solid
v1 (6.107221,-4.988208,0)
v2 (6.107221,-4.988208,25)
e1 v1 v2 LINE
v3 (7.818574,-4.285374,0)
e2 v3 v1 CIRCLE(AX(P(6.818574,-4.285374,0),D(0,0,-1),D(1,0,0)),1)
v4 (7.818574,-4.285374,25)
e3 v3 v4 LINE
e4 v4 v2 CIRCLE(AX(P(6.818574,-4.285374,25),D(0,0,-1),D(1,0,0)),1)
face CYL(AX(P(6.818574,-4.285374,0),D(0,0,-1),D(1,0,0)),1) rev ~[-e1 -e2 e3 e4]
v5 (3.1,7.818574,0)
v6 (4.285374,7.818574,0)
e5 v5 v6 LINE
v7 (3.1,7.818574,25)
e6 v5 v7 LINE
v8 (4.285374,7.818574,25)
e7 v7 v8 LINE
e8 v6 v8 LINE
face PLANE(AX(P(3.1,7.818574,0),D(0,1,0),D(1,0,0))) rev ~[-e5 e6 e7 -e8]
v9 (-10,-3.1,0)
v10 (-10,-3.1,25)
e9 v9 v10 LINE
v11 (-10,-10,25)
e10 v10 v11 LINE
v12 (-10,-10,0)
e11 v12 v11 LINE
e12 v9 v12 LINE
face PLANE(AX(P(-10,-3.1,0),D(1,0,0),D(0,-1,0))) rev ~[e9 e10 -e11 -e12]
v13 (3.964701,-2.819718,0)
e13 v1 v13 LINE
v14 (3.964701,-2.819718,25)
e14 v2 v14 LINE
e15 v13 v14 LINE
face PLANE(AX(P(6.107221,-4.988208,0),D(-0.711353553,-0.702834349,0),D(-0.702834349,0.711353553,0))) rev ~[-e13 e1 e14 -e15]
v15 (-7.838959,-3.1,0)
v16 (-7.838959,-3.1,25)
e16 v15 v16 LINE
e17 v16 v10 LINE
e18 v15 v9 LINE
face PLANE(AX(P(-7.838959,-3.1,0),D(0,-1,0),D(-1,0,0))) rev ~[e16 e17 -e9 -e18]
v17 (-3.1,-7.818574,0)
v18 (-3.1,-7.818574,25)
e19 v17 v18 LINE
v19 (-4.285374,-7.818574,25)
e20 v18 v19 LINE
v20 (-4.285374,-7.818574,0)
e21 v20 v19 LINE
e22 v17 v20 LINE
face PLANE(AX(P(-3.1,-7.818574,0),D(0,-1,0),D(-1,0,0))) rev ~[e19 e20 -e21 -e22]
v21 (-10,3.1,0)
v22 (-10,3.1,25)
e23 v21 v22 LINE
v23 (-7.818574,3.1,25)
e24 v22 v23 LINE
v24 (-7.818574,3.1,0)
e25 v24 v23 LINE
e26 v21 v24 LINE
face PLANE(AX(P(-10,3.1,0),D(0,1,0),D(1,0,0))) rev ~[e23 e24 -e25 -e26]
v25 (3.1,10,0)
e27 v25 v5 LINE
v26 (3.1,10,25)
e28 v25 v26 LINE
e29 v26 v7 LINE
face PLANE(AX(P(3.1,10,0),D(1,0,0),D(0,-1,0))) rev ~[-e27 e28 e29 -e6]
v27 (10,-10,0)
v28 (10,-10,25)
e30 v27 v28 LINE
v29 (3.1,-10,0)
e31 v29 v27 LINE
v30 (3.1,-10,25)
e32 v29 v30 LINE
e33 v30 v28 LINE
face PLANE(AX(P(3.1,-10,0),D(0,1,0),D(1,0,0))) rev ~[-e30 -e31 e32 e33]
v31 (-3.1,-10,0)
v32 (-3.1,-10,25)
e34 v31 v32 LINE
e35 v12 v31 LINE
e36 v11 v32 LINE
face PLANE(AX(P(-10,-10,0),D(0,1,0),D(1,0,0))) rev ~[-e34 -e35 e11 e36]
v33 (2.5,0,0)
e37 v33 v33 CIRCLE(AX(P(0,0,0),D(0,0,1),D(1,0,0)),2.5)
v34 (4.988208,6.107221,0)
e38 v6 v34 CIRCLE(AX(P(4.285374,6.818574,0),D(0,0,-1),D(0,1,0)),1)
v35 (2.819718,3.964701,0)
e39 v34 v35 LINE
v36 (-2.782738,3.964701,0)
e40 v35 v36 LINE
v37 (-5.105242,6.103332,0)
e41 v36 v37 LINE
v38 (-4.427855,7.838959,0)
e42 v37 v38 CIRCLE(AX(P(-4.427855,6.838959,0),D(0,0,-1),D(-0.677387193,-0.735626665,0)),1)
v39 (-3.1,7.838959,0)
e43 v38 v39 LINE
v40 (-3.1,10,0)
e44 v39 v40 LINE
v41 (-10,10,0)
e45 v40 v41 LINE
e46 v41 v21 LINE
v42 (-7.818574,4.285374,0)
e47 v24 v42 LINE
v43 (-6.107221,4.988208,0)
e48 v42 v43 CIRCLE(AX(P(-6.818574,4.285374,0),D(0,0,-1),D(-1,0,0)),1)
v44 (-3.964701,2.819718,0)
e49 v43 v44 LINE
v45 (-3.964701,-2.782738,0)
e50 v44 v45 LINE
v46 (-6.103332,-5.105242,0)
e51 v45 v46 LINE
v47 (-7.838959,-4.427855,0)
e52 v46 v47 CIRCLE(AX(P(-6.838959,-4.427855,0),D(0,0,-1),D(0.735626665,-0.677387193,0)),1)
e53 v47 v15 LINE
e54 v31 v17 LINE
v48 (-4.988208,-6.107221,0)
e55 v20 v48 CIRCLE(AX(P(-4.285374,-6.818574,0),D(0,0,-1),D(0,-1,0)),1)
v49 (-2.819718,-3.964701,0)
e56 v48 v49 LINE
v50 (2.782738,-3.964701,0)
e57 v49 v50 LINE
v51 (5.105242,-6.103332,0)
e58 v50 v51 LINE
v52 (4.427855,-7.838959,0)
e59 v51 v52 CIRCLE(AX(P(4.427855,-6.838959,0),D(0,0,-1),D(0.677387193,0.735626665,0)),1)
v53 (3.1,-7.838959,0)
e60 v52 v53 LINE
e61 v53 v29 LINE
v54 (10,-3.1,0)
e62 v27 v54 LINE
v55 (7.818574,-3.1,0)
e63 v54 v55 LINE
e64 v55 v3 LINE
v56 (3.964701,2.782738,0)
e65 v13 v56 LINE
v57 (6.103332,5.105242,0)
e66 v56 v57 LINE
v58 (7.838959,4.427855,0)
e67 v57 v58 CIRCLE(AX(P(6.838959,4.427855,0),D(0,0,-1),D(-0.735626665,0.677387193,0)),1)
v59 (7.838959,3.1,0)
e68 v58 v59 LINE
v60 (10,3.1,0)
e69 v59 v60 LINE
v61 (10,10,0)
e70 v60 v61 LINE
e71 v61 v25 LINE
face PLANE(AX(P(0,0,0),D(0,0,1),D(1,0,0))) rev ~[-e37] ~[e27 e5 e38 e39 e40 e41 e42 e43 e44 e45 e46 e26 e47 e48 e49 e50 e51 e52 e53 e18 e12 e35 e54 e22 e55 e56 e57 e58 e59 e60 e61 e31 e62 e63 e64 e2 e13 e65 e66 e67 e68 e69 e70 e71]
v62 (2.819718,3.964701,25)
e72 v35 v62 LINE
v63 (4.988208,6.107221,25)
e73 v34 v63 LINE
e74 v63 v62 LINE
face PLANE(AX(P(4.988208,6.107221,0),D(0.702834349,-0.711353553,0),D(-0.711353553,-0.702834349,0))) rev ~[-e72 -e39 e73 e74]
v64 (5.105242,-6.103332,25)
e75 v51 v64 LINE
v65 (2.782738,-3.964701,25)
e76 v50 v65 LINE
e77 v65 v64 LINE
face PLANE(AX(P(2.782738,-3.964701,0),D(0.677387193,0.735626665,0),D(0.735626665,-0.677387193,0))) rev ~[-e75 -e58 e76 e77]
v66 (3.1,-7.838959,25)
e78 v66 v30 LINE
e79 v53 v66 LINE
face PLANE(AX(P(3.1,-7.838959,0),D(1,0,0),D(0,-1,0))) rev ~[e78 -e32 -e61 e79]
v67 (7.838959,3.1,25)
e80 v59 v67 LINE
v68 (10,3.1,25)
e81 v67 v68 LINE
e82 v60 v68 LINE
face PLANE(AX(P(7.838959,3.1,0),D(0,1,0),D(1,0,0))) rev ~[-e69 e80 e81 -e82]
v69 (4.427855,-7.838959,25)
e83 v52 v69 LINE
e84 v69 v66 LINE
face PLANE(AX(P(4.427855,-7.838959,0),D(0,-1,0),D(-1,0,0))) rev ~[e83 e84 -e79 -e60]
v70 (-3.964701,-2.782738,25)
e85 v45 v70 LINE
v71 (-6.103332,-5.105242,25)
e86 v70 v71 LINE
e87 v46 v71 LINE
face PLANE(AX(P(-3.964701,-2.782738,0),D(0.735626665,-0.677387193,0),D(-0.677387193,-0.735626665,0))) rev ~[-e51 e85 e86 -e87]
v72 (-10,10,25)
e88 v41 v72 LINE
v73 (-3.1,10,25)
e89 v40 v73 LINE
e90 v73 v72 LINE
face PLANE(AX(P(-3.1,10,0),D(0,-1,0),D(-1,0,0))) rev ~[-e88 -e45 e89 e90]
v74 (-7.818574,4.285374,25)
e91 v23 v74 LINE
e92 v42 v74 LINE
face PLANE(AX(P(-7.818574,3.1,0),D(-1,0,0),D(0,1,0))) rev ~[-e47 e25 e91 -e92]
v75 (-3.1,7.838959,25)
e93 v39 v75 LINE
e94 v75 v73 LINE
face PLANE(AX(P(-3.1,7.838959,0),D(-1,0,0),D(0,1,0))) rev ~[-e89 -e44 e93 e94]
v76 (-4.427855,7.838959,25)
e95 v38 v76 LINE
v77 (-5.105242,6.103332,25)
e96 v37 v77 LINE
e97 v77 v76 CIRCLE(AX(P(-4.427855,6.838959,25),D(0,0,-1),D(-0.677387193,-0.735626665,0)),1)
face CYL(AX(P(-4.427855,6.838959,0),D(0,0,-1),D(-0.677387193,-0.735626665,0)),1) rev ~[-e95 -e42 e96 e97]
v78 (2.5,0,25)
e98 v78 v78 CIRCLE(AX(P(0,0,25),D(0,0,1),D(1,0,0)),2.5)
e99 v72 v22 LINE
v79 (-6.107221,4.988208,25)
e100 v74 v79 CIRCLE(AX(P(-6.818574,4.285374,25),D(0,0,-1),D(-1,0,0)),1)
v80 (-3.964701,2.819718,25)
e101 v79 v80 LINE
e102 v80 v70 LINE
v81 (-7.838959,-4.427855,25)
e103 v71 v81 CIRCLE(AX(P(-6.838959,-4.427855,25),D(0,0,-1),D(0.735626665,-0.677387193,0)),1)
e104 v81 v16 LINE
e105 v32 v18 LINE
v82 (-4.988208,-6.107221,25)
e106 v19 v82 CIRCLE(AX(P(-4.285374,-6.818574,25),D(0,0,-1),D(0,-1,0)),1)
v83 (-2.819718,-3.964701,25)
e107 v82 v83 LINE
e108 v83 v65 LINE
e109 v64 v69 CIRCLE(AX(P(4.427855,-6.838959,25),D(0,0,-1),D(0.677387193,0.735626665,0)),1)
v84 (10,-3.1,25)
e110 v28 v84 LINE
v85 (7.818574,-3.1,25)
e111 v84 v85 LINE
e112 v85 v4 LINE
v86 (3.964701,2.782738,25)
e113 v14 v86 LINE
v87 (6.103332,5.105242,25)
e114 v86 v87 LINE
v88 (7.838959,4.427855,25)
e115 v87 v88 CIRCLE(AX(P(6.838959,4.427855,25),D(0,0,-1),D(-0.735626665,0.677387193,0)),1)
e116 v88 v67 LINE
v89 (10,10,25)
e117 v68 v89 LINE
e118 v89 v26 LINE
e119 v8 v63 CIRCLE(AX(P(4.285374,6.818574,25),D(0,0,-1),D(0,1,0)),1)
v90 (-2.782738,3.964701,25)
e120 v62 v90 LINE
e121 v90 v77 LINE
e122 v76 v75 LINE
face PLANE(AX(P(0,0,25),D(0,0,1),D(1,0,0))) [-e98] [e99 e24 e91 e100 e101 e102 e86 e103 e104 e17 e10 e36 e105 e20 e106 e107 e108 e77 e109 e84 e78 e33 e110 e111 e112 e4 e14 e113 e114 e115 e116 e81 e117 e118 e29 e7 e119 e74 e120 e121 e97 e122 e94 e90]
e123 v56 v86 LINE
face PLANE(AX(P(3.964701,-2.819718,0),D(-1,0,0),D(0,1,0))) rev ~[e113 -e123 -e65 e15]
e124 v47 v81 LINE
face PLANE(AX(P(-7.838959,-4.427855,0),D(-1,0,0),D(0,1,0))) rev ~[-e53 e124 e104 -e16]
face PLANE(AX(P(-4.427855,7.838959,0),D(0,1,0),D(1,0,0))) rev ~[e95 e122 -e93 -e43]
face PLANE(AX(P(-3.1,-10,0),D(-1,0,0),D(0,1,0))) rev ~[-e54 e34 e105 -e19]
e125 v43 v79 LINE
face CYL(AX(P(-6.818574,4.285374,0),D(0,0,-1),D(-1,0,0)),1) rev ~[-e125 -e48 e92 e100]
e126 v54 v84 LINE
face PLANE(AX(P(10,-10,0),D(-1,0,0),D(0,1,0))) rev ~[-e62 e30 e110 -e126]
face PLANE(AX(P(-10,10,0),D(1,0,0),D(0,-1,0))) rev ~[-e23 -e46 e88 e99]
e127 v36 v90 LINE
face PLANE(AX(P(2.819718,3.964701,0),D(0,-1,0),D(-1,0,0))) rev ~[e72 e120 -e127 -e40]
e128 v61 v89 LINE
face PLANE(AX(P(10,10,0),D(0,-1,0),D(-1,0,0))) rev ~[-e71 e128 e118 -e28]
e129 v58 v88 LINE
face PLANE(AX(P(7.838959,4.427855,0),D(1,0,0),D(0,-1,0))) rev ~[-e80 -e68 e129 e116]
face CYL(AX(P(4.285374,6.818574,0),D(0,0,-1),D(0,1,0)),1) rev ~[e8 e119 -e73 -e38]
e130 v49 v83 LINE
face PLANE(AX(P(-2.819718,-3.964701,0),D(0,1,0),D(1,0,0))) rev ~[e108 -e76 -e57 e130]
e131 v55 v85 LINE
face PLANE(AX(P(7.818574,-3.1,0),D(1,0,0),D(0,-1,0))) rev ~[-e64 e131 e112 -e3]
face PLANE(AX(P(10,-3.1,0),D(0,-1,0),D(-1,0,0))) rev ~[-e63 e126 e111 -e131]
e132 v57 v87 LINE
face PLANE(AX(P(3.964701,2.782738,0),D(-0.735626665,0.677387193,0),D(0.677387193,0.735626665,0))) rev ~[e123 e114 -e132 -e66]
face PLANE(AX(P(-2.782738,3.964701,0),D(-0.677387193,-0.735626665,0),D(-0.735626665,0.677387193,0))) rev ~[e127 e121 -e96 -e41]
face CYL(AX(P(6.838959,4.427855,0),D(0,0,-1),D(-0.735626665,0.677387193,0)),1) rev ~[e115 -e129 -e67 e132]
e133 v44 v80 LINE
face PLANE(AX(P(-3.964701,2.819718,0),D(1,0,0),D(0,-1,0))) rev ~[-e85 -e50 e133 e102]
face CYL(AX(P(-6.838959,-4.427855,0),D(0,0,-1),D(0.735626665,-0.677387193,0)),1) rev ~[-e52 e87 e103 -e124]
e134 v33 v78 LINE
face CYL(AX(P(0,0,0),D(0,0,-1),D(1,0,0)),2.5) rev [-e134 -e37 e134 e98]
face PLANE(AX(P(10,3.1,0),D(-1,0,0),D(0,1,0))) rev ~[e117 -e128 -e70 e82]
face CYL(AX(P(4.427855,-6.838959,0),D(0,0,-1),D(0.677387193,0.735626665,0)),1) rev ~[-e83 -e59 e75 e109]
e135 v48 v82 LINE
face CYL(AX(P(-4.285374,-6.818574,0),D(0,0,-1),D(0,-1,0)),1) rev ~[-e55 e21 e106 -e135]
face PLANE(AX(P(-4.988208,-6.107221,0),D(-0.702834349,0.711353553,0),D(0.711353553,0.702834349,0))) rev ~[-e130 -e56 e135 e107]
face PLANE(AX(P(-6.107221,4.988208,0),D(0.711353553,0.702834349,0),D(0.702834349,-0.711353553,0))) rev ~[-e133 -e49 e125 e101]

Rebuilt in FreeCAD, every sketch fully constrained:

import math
import FreeCAD as App
import Part
import Sketcher
Q = App.Units.Quantity

doc = App.newDocument("Part")
body = doc.addObject("PartDesign::Body", "Body")

# Sketch on XY plane
sketch1 = body.newObject("Sketcher::SketchObject", "Sketch")
sketch1.AttachmentSupport = (doc.getObject("XY_Plane"), [""])
sketch1.MapMode = "FlatFace"
sketch1.addGeometry(Part.LineSegment(App.Vector(-10, -10, 0), App.Vector(-3.1, -10, 0)), False)
sketch1.addGeometry(Part.LineSegment(App.Vector(-3.1, -10, 0), App.Vector(-3.1, -7.8, 0)), False)
sketch1.addGeometry(Part.LineSegment(App.Vector(-3.1, -7.8, 0), App.Vector(-4.3, -7.8, 0)), False)
sketch1.addGeometry(Part.ArcOfCircle(Part.Circle(App.Vector(-4.3, -6.8, 0), App.Vector(0, 0, 1), 1), math.radians(135), math.radians(270)), False)
sketch1.addGeometry(Part.LineSegment(App.Vector(-5, -6.1, 0), App.Vector(-2.8, -4, 0)), False)
sketch1.addGeometry(Part.LineSegment(App.Vector(-2.8, -4, 0), App.Vector(2.8, -4, 0)), False)
sketch1.addGeometry(Part.LineSegment(App.Vector(2.8, -4, 0), App.Vector(5.1, -6.1, 0)), False)
sketch1.addGeometry(Part.ArcOfCircle(Part.Circle(App.Vector(4.4, -6.8, 0), App.Vector(0, 0, 1), 1), math.radians(-90), math.radians(47)), False)
sketch1.addGeometry(Part.LineSegment(App.Vector(4.4, -7.8, 0), App.Vector(3.1, -7.8, 0)), False)
sketch1.addGeometry(Part.LineSegment(App.Vector(3.1, -7.8, 0), App.Vector(3.1, -10, 0)), False)
sketch1.addGeometry(Part.LineSegment(App.Vector(3.1, -10, 0), App.Vector(10, -10, 0)), False)
sketch1.addGeometry(Part.LineSegment(App.Vector(10, -10, 0), App.Vector(10, -3.1, 0)), False)
sketch1.addGeometry(Part.LineSegment(App.Vector(10, -3.1, 0), App.Vector(7.8, -3.1, 0)), False)
sketch1.addGeometry(Part.LineSegment(App.Vector(7.8, -3.1, 0), App.Vector(7.8, -4.3, 0)), False)
sketch1.addGeometry(Part.ArcOfCircle(Part.Circle(App.Vector(6.8, -4.3, 0), App.Vector(0, 0, 1), 1), math.radians(-135), math.radians(0)), False)
sketch1.addGeometry(Part.LineSegment(App.Vector(6.1, -5, 0), App.Vector(4, -2.8, 0)), False)
sketch1.addGeometry(Part.LineSegment(App.Vector(4, -2.8, 0), App.Vector(4, 2.8, 0)), False)
sketch1.addGeometry(Part.LineSegment(App.Vector(4, 2.8, 0), App.Vector(6.1, 5.1, 0)), False)
sketch1.addGeometry(Part.ArcOfCircle(Part.Circle(App.Vector(6.8, 4.4, 0), App.Vector(0, 0, 1), 1), math.radians(0), math.radians(137)), False)
sketch1.addGeometry(Part.LineSegment(App.Vector(7.8, 4.4, 0), App.Vector(7.8, 3.1, 0)), False)
sketch1.addGeometry(Part.LineSegment(App.Vector(7.8, 3.1, 0), App.Vector(10, 3.1, 0)), False)
sketch1.addGeometry(Part.LineSegment(App.Vector(10, 3.1, 0), App.Vector(10, 10, 0)), False)
sketch1.addGeometry(Part.LineSegment(App.Vector(10, 10, 0), App.Vector(3.1, 10, 0)), False)
sketch1.addGeometry(Part.LineSegment(App.Vector(3.1, 10, 0), App.Vector(3.1, 7.8, 0)), False)
sketch1.addGeometry(Part.LineSegment(App.Vector(3.1, 7.8, 0), App.Vector(4.3, 7.8, 0)), False)
sketch1.addGeometry(Part.ArcOfCircle(Part.Circle(App.Vector(4.3, 6.8, 0), App.Vector(0, 0, 1), 1), math.radians(-45), math.radians(90)), False)
sketch1.addGeometry(Part.LineSegment(App.Vector(5, 6.1, 0), App.Vector(2.8, 4, 0)), False)
sketch1.addGeometry(Part.LineSegment(App.Vector(2.8, 4, 0), App.Vector(-2.8, 4, 0)), False)
sketch1.addGeometry(Part.LineSegment(App.Vector(-2.8, 4, 0), App.Vector(-5.1, 6.1, 0)), False)
sketch1.addGeometry(Part.ArcOfCircle(Part.Circle(App.Vector(-4.4, 6.8, 0), App.Vector(0, 0, 1), 1), math.radians(90), math.radians(227)), False)
sketch1.addGeometry(Part.LineSegment(App.Vector(-4.4, 7.8, 0), App.Vector(-3.1, 7.8, 0)), False)
sketch1.addGeometry(Part.LineSegment(App.Vector(-3.1, 7.8, 0), App.Vector(-3.1, 10, 0)), False)
sketch1.addGeometry(Part.LineSegment(App.Vector(-3.1, 10, 0), App.Vector(-10, 10, 0)), False)
sketch1.addGeometry(Part.LineSegment(App.Vector(-10, 10, 0), App.Vector(-10, 3.1, 0)), False)
sketch1.addGeometry(Part.LineSegment(App.Vector(-10, 3.1, 0), App.Vector(-7.8, 3.1, 0)), False)
sketch1.addGeometry(Part.LineSegment(App.Vector(-7.8, 3.1, 0), App.Vector(-7.8, 4.3, 0)), False)
sketch1.addGeometry(Part.ArcOfCircle(Part.Circle(App.Vector(-6.8, 4.3, 0), App.Vector(0, 0, 1), 1), math.radians(45), math.radians(180)), False)
sketch1.addGeometry(Part.LineSegment(App.Vector(-6.1, 5, 0), App.Vector(-4, 2.8, 0)), False)
sketch1.addGeometry(Part.LineSegment(App.Vector(-4, 2.8, 0), App.Vector(-4, -2.8, 0)), False)
sketch1.addGeometry(Part.LineSegment(App.Vector(-4, -2.8, 0), App.Vector(-6.1, -5.1, 0)), False)
sketch1.addGeometry(Part.ArcOfCircle(Part.Circle(App.Vector(-6.8, -4.4, 0), App.Vector(0, 0, 1), 1), math.radians(-180), math.radians(-43)), False)
sketch1.addGeometry(Part.LineSegment(App.Vector(-7.8, -4.4, 0), App.Vector(-7.8, -3.1, 0)), False)
sketch1.addGeometry(Part.LineSegment(App.Vector(-7.8, -3.1, 0), App.Vector(-10, -3.1, 0)), False)
sketch1.addGeometry(Part.LineSegment(App.Vector(-10, -3.1, 0), App.Vector(-10, -10, 0)), False)
sketch1.addGeometry(Part.Circle(App.Vector(0, 0, 0), App.Vector(0, 0, 1), 2.5), False)
sketch1.addConstraint(Sketcher.Constraint("Coincident", 0, 2, 1, 1))
sketch1.addConstraint(Sketcher.Constraint("Coincident", 1, 2, 2, 1))
sketch1.addConstraint(Sketcher.Constraint("Tangent", 2, 2, 3, 2))
sketch1.addConstraint(Sketcher.Constraint("Tangent", 3, 1, 4, 1))
sketch1.addConstraint(Sketcher.Constraint("Coincident", 4, 2, 5, 1))
sketch1.addConstraint(Sketcher.Constraint("Coincident", 5, 2, 6, 1))
sketch1.addConstraint(Sketcher.Constraint("Tangent", 6, 2, 7, 2))
sketch1.addConstraint(Sketcher.Constraint("Tangent", 7, 1, 8, 1))
sketch1.addConstraint(Sketcher.Constraint("Coincident", 8, 2, 9, 1))
sketch1.addConstraint(Sketcher.Constraint("Coincident", 9, 2, 10, 1))
sketch1.addConstraint(Sketcher.Constraint("Coincident", 10, 2, 11, 1))
sketch1.addConstraint(Sketcher.Constraint("Coincident", 11, 2, 12, 1))
sketch1.addConstraint(Sketcher.Constraint("Coincident", 12, 2, 13, 1))
sketch1.addConstraint(Sketcher.Constraint("Tangent", 13, 2, 14, 2))
sketch1.addConstraint(Sketcher.Constraint("Tangent", 14, 1, 15, 1))
sketch1.addConstraint(Sketcher.Constraint("Coincident", 15, 2, 16, 1))
sketch1.addConstraint(Sketcher.Constraint("Coincident", 16, 2, 17, 1))
sketch1.addConstraint(Sketcher.Constraint("Tangent", 17, 2, 18, 2))
sketch1.addConstraint(Sketcher.Constraint("Tangent", 18, 1, 19, 1))
sketch1.addConstraint(Sketcher.Constraint("Coincident", 19, 2, 20, 1))
sketch1.addConstraint(Sketcher.Constraint("Coincident", 20, 2, 21, 1))
sketch1.addConstraint(Sketcher.Constraint("Coincident", 21, 2, 22, 1))
sketch1.addConstraint(Sketcher.Constraint("Coincident", 22, 2, 23, 1))
sketch1.addConstraint(Sketcher.Constraint("Coincident", 23, 2, 24, 1))
sketch1.addConstraint(Sketcher.Constraint("Tangent", 24, 2, 25, 2))
sketch1.addConstraint(Sketcher.Constraint("Tangent", 25, 1, 26, 1))
sketch1.addConstraint(Sketcher.Constraint("Coincident", 26, 2, 27, 1))
sketch1.addConstraint(Sketcher.Constraint("Coincident", 27, 2, 28, 1))
sketch1.addConstraint(Sketcher.Constraint("Tangent", 28, 2, 29, 2))
sketch1.addConstraint(Sketcher.Constraint("Tangent", 29, 1, 30, 1))
sketch1.addConstraint(Sketcher.Constraint("Coincident", 30, 2, 31, 1))
sketch1.addConstraint(Sketcher.Constraint("Coincident", 31, 2, 32, 1))
sketch1.addConstraint(Sketcher.Constraint("Coincident", 32, 2, 33, 1))
sketch1.addConstraint(Sketcher.Constraint("Coincident", 33, 2, 34, 1))
sketch1.addConstraint(Sketcher.Constraint("Coincident", 34, 2, 35, 1))
sketch1.addConstraint(Sketcher.Constraint("Tangent", 35, 2, 36, 2))
sketch1.addConstraint(Sketcher.Constraint("Tangent", 36, 1, 37, 1))
sketch1.addConstraint(Sketcher.Constraint("Coincident", 37, 2, 38, 1))
sketch1.addConstraint(Sketcher.Constraint("Coincident", 38, 2, 39, 1))
sketch1.addConstraint(Sketcher.Constraint("Tangent", 39, 2, 40, 2))
sketch1.addConstraint(Sketcher.Constraint("Tangent", 40, 1, 41, 1))
sketch1.addConstraint(Sketcher.Constraint("Coincident", 41, 2, 42, 1))
sketch1.addConstraint(Sketcher.Constraint("Coincident", 42, 2, 43, 1))
sketch1.addConstraint(Sketcher.Constraint("Coincident", 43, 2, 0, 1))
sketch1.addConstraint(Sketcher.Constraint("Horizontal", 0))
sketch1.addConstraint(Sketcher.Constraint("Vertical", 1))
sketch1.addConstraint(Sketcher.Constraint("Horizontal", 2))
sketch1.addConstraint(Sketcher.Constraint("Horizontal", 5))
sketch1.addConstraint(Sketcher.Constraint("Horizontal", 8))
sketch1.addConstraint(Sketcher.Constraint("Vertical", 9))
sketch1.addConstraint(Sketcher.Constraint("Horizontal", 10))
sketch1.addConstraint(Sketcher.Constraint("Vertical", 11))
sketch1.addConstraint(Sketcher.Constraint("Horizontal", 12))
sketch1.addConstraint(Sketcher.Constraint("Vertical", 13))
sketch1.addConstraint(Sketcher.Constraint("Vertical", 16))
sketch1.addConstraint(Sketcher.Constraint("Vertical", 19))
sketch1.addConstraint(Sketcher.Constraint("Horizontal", 20))
sketch1.addConstraint(Sketcher.Constraint("Vertical", 21))
sketch1.addConstraint(Sketcher.Constraint("Horizontal", 22))
sketch1.addConstraint(Sketcher.Constraint("Vertical", 23))
sketch1.addConstraint(Sketcher.Constraint("Horizontal", 24))
sketch1.addConstraint(Sketcher.Constraint("Horizontal", 27))
sketch1.addConstraint(Sketcher.Constraint("Horizontal", 30))
sketch1.addConstraint(Sketcher.Constraint("Vertical", 31))
sketch1.addConstraint(Sketcher.Constraint("Horizontal", 32))
sketch1.addConstraint(Sketcher.Constraint("Vertical", 33))
sketch1.addConstraint(Sketcher.Constraint("Horizontal", 34))
sketch1.addConstraint(Sketcher.Constraint("Vertical", 35))
sketch1.addConstraint(Sketcher.Constraint("Vertical", 38))
sketch1.addConstraint(Sketcher.Constraint("Vertical", 41))
sketch1.addConstraint(Sketcher.Constraint("Horizontal", 42))
sketch1.addConstraint(Sketcher.Constraint("Vertical", 43))
sketch1.addConstraint(Sketcher.Constraint("Coincident", 44, 3, -1, 1))
sketch1.addConstraint(Sketcher.Constraint("Equal", 3, 7))
sketch1.addConstraint(Sketcher.Constraint("Equal", 7, 14))
sketch1.addConstraint(Sketcher.Constraint("Equal", 14, 18))
sketch1.addConstraint(Sketcher.Constraint("Equal", 18, 25))
sketch1.addConstraint(Sketcher.Constraint("Equal", 25, 29))
sketch1.addConstraint(Sketcher.Constraint("Equal", 29, 36))
sketch1.addConstraint(Sketcher.Constraint("Equal", 36, 40))
sketch1.addConstraint(Sketcher.Constraint("Symmetric", 3, 3, 25, 3, -1, 1))
sketch1.addConstraint(Sketcher.Constraint("Symmetric", 7, 3, 29, 3, -1, 1))
sketch1.addConstraint(Sketcher.Constraint("Symmetric", 14, 3, 36, 3, -1, 1))
sketch1.addConstraint(Sketcher.Constraint("Symmetric", 18, 3, 40, 3, -1, 1))
sketch1.addConstraint(Sketcher.Constraint("Symmetric", 0, 2, 22, 2, -1, 1))
sketch1.addConstraint(Sketcher.Constraint("Symmetric", 4, 2, 26, 2, -1, 1))
sketch1.addConstraint(Sketcher.Constraint("Symmetric", 9, 2, 31, 2, -1, 1))
sketch1.addConstraint(Sketcher.Constraint("Symmetric", 11, 2, 33, 2, -1, 1))
sketch1.addConstraint(Sketcher.Constraint("Symmetric", 15, 2, 37, 2, -1, 1))
sketch1.addConstraint(Sketcher.Constraint("Symmetric", 20, 2, 42, 2, -1, 1))
sketch1.addConstraint(Sketcher.Constraint("Symmetric", 0, 2, 9, 2, -2))
sketch1.addConstraint(Sketcher.Constraint("Symmetric", 20, 2, 33, 2, -2))
sketch1.addConstraint(Sketcher.Constraint("Perpendicular", 4, 15))
sketch1.addConstraint(Sketcher.Constraint("Perpendicular", 6, 17))
sketch1.addConstraint(Sketcher.Constraint("Perpendicular", 17, 28))
sketch1.addConstraint(Sketcher.Constraint("Perpendicular", 28, 39))
sketch1.addConstraint(Sketcher.Constraint("Equal", 34, 1))
sketch1.addConstraint(Sketcher.Constraint("Equal", 42, 9))
sketch1.addConstraint(Sketcher.Constraint("Equal", 32, 11))
sketch1.addConstraint(Sketcher.Constraint("Equal", 24, 13))
sketch1.addConstraint(Sketcher.Constraint("Equal", 27, 16))
sketch1.addConstraint(Sketcher.Constraint("Equal", 30, 19))
sketch1.addConstraint(Sketcher.Constraint("Equal", 4, 15))
sketch1.addConstraint(Sketcher.Constraint("Diameter", 44, Q("5 mm")))
sketch1.addConstraint(Sketcher.Constraint("Radius", 3, Q("1 mm")))
sketch1.addConstraint(Sketcher.Constraint("DistanceX", 0, 1, 0, 2, Q("6.9 mm")))
sketch1.addConstraint(Sketcher.Constraint("DistanceY", 0, 2, -1, 1, Q("10 mm")))
sketch1.addConstraint(Sketcher.Constraint("Distance", 4, Q("3.0484 mm")))
sketch1.addConstraint(Sketcher.Constraint("DistanceX", 20, 1, 20, 2, Q("2.161041 mm")))
sketch1.addConstraint(Sketcher.Constraint("DistanceY", 4, 2, -1, 1, Q("3.964701 mm")))
sketch1.addConstraint(Sketcher.Constraint("DistanceY", 3, 3, 14, 3, Q("2.5332 mm")))
sketch1.addConstraint(Sketcher.Constraint("DistanceX", 2, 2, 2, 1, Q("1.185374 mm")))
sketch1.addConstraint(Sketcher.Constraint("DistanceX", 5, 1, 5, 2, Q("5.602456 mm")))
sketch1.addConstraint(Sketcher.Constraint("DistanceX", 8, 2, 8, 1, Q("1.327855 mm")))
pad1 = body.newObject("PartDesign::Pad", "Pad")
pad1.Profile = sketch1
pad1.Length = 25

doc.recompute()
